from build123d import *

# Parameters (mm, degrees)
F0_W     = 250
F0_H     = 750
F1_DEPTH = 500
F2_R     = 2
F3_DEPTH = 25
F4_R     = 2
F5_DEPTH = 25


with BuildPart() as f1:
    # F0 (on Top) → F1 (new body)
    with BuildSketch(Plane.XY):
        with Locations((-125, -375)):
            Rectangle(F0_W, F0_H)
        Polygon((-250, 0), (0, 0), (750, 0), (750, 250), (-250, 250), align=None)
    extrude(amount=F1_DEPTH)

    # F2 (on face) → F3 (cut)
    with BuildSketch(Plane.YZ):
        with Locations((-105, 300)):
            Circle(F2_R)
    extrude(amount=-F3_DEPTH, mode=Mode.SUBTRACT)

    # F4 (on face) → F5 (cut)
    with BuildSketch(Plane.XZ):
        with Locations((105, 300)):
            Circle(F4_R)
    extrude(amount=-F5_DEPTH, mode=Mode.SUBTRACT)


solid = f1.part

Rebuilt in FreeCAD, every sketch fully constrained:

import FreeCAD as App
import Part
import Sketcher
Q = App.Units.Quantity

doc = App.newDocument("Part")
body = doc.addObject("PartDesign::Body", "Body")

# Sketch on XY plane
sketch1 = doc.addObject("Sketcher::SketchObject", "Sketch")
body.addObject(sketch1)
sketch1.AttachmentSupport = (doc.XY_Plane, [""])
sketch1.MapMode = "FlatFace"
sketch1.addGeometry([
    Part.LineSegment(App.Vector(-250, -750, 0), App.Vector(0, -750, 0)),  # 0
    Part.LineSegment(App.Vector(0, -750, 0), App.Vector(0, 0, 0)),  # 1
    Part.LineSegment(App.Vector(0, 0, 0), App.Vector(750, 0, 0)),  # 2
    Part.LineSegment(App.Vector(750, 0, 0), App.Vector(750, 250, 0)),  # 3
    Part.LineSegment(App.Vector(750, 250, 0), App.Vector(-250, 250, 0)),  # 4
    Part.LineSegment(App.Vector(-250, 250, 0), App.Vector(-250, -750, 0)),  # 5
], False)
sketch1.addConstraint([
    Sketcher.Constraint("Coincident", 0, 2, 1, 1),
    Sketcher.Constraint("Coincident", 1, 2, 2, 1),
    Sketcher.Constraint("Coincident", 2, 2, 3, 1),
    Sketcher.Constraint("Coincident", 3, 2, 4, 1),
    Sketcher.Constraint("Coincident", 4, 2, 5, 1),
    Sketcher.Constraint("Coincident", 5, 2, 0, 1),
    Sketcher.Constraint("Horizontal", 0),
    Sketcher.Constraint("Vertical", 1),
    Sketcher.Constraint("Horizontal", 2),
    Sketcher.Constraint("Vertical", 3),
    Sketcher.Constraint("Horizontal", 4),
    Sketcher.Constraint("Vertical", 5),
    Sketcher.Constraint("Coincident", 1, 2, -1, 1),
    Sketcher.Constraint("Equal", 2, 1),
    Sketcher.Constraint("Equal", 0, 3),
    Sketcher.Constraint("DistanceX", 0, 1, 0, 2, Q("250 mm")),
    Sketcher.Constraint("DistanceX", 2, 1, 2, 2, Q("750 mm")),
])
pad1 = doc.addObject("PartDesign::Pad", "Pad")
body.addObject(pad1)
pad1.Profile = sketch1
pad1.Length = 500

# Sketch on YZ plane
sketch2 = doc.addObject("Sketcher::SketchObject", "Sketch001")
body.addObject(sketch2)
sketch2.AttachmentSupport = (doc.YZ_Plane, [""])
sketch2.MapMode = "FlatFace"
sketch2.addGeometry(Part.Circle(App.Vector(-105, 300, 0), App.Vector(0, 0, 1), 2), False)
sketch2.addConstraint([
    Sketcher.Constraint("Diameter", 0, Q("4 mm")),
    Sketcher.Constraint("DistanceX", 0, 3, -1, 1, Q("105 mm")),
    Sketcher.Constraint("DistanceY", -1, 1, 0, 3, Q("300 mm")),
])
pocket1 = doc.addObject("PartDesign::Pocket", "Pocket")
body.addObject(pocket1)
pocket1.Profile = sketch2
pocket1.Length = 25

# Sketch on XZ plane
sketch3 = doc.addObject("Sketcher::SketchObject", "Sketch002")
body.addObject(sketch3)
sketch3.AttachmentSupport = (doc.XZ_Plane, [""])
sketch3.MapMode = "FlatFace"
sketch3.addGeometry(Part.Circle(App.Vector(105, 300, 0), App.Vector(0, 0, 1), 2), False)
sketch3.addConstraint([
    Sketcher.Constraint("Diameter", 0, Q("4 mm")),
    Sketcher.Constraint("DistanceX", -1, 1, 0, 3, Q("105 mm")),
    Sketcher.Constraint("DistanceY", -1, 1, 0, 3, Q("300 mm")),
])
pocket2 = doc.addObject("PartDesign::Pocket", "Pocket001")
body.addObject(pocket2)
pocket2.Profile = sketch3
pocket2.Length = 25

doc.recompute()
